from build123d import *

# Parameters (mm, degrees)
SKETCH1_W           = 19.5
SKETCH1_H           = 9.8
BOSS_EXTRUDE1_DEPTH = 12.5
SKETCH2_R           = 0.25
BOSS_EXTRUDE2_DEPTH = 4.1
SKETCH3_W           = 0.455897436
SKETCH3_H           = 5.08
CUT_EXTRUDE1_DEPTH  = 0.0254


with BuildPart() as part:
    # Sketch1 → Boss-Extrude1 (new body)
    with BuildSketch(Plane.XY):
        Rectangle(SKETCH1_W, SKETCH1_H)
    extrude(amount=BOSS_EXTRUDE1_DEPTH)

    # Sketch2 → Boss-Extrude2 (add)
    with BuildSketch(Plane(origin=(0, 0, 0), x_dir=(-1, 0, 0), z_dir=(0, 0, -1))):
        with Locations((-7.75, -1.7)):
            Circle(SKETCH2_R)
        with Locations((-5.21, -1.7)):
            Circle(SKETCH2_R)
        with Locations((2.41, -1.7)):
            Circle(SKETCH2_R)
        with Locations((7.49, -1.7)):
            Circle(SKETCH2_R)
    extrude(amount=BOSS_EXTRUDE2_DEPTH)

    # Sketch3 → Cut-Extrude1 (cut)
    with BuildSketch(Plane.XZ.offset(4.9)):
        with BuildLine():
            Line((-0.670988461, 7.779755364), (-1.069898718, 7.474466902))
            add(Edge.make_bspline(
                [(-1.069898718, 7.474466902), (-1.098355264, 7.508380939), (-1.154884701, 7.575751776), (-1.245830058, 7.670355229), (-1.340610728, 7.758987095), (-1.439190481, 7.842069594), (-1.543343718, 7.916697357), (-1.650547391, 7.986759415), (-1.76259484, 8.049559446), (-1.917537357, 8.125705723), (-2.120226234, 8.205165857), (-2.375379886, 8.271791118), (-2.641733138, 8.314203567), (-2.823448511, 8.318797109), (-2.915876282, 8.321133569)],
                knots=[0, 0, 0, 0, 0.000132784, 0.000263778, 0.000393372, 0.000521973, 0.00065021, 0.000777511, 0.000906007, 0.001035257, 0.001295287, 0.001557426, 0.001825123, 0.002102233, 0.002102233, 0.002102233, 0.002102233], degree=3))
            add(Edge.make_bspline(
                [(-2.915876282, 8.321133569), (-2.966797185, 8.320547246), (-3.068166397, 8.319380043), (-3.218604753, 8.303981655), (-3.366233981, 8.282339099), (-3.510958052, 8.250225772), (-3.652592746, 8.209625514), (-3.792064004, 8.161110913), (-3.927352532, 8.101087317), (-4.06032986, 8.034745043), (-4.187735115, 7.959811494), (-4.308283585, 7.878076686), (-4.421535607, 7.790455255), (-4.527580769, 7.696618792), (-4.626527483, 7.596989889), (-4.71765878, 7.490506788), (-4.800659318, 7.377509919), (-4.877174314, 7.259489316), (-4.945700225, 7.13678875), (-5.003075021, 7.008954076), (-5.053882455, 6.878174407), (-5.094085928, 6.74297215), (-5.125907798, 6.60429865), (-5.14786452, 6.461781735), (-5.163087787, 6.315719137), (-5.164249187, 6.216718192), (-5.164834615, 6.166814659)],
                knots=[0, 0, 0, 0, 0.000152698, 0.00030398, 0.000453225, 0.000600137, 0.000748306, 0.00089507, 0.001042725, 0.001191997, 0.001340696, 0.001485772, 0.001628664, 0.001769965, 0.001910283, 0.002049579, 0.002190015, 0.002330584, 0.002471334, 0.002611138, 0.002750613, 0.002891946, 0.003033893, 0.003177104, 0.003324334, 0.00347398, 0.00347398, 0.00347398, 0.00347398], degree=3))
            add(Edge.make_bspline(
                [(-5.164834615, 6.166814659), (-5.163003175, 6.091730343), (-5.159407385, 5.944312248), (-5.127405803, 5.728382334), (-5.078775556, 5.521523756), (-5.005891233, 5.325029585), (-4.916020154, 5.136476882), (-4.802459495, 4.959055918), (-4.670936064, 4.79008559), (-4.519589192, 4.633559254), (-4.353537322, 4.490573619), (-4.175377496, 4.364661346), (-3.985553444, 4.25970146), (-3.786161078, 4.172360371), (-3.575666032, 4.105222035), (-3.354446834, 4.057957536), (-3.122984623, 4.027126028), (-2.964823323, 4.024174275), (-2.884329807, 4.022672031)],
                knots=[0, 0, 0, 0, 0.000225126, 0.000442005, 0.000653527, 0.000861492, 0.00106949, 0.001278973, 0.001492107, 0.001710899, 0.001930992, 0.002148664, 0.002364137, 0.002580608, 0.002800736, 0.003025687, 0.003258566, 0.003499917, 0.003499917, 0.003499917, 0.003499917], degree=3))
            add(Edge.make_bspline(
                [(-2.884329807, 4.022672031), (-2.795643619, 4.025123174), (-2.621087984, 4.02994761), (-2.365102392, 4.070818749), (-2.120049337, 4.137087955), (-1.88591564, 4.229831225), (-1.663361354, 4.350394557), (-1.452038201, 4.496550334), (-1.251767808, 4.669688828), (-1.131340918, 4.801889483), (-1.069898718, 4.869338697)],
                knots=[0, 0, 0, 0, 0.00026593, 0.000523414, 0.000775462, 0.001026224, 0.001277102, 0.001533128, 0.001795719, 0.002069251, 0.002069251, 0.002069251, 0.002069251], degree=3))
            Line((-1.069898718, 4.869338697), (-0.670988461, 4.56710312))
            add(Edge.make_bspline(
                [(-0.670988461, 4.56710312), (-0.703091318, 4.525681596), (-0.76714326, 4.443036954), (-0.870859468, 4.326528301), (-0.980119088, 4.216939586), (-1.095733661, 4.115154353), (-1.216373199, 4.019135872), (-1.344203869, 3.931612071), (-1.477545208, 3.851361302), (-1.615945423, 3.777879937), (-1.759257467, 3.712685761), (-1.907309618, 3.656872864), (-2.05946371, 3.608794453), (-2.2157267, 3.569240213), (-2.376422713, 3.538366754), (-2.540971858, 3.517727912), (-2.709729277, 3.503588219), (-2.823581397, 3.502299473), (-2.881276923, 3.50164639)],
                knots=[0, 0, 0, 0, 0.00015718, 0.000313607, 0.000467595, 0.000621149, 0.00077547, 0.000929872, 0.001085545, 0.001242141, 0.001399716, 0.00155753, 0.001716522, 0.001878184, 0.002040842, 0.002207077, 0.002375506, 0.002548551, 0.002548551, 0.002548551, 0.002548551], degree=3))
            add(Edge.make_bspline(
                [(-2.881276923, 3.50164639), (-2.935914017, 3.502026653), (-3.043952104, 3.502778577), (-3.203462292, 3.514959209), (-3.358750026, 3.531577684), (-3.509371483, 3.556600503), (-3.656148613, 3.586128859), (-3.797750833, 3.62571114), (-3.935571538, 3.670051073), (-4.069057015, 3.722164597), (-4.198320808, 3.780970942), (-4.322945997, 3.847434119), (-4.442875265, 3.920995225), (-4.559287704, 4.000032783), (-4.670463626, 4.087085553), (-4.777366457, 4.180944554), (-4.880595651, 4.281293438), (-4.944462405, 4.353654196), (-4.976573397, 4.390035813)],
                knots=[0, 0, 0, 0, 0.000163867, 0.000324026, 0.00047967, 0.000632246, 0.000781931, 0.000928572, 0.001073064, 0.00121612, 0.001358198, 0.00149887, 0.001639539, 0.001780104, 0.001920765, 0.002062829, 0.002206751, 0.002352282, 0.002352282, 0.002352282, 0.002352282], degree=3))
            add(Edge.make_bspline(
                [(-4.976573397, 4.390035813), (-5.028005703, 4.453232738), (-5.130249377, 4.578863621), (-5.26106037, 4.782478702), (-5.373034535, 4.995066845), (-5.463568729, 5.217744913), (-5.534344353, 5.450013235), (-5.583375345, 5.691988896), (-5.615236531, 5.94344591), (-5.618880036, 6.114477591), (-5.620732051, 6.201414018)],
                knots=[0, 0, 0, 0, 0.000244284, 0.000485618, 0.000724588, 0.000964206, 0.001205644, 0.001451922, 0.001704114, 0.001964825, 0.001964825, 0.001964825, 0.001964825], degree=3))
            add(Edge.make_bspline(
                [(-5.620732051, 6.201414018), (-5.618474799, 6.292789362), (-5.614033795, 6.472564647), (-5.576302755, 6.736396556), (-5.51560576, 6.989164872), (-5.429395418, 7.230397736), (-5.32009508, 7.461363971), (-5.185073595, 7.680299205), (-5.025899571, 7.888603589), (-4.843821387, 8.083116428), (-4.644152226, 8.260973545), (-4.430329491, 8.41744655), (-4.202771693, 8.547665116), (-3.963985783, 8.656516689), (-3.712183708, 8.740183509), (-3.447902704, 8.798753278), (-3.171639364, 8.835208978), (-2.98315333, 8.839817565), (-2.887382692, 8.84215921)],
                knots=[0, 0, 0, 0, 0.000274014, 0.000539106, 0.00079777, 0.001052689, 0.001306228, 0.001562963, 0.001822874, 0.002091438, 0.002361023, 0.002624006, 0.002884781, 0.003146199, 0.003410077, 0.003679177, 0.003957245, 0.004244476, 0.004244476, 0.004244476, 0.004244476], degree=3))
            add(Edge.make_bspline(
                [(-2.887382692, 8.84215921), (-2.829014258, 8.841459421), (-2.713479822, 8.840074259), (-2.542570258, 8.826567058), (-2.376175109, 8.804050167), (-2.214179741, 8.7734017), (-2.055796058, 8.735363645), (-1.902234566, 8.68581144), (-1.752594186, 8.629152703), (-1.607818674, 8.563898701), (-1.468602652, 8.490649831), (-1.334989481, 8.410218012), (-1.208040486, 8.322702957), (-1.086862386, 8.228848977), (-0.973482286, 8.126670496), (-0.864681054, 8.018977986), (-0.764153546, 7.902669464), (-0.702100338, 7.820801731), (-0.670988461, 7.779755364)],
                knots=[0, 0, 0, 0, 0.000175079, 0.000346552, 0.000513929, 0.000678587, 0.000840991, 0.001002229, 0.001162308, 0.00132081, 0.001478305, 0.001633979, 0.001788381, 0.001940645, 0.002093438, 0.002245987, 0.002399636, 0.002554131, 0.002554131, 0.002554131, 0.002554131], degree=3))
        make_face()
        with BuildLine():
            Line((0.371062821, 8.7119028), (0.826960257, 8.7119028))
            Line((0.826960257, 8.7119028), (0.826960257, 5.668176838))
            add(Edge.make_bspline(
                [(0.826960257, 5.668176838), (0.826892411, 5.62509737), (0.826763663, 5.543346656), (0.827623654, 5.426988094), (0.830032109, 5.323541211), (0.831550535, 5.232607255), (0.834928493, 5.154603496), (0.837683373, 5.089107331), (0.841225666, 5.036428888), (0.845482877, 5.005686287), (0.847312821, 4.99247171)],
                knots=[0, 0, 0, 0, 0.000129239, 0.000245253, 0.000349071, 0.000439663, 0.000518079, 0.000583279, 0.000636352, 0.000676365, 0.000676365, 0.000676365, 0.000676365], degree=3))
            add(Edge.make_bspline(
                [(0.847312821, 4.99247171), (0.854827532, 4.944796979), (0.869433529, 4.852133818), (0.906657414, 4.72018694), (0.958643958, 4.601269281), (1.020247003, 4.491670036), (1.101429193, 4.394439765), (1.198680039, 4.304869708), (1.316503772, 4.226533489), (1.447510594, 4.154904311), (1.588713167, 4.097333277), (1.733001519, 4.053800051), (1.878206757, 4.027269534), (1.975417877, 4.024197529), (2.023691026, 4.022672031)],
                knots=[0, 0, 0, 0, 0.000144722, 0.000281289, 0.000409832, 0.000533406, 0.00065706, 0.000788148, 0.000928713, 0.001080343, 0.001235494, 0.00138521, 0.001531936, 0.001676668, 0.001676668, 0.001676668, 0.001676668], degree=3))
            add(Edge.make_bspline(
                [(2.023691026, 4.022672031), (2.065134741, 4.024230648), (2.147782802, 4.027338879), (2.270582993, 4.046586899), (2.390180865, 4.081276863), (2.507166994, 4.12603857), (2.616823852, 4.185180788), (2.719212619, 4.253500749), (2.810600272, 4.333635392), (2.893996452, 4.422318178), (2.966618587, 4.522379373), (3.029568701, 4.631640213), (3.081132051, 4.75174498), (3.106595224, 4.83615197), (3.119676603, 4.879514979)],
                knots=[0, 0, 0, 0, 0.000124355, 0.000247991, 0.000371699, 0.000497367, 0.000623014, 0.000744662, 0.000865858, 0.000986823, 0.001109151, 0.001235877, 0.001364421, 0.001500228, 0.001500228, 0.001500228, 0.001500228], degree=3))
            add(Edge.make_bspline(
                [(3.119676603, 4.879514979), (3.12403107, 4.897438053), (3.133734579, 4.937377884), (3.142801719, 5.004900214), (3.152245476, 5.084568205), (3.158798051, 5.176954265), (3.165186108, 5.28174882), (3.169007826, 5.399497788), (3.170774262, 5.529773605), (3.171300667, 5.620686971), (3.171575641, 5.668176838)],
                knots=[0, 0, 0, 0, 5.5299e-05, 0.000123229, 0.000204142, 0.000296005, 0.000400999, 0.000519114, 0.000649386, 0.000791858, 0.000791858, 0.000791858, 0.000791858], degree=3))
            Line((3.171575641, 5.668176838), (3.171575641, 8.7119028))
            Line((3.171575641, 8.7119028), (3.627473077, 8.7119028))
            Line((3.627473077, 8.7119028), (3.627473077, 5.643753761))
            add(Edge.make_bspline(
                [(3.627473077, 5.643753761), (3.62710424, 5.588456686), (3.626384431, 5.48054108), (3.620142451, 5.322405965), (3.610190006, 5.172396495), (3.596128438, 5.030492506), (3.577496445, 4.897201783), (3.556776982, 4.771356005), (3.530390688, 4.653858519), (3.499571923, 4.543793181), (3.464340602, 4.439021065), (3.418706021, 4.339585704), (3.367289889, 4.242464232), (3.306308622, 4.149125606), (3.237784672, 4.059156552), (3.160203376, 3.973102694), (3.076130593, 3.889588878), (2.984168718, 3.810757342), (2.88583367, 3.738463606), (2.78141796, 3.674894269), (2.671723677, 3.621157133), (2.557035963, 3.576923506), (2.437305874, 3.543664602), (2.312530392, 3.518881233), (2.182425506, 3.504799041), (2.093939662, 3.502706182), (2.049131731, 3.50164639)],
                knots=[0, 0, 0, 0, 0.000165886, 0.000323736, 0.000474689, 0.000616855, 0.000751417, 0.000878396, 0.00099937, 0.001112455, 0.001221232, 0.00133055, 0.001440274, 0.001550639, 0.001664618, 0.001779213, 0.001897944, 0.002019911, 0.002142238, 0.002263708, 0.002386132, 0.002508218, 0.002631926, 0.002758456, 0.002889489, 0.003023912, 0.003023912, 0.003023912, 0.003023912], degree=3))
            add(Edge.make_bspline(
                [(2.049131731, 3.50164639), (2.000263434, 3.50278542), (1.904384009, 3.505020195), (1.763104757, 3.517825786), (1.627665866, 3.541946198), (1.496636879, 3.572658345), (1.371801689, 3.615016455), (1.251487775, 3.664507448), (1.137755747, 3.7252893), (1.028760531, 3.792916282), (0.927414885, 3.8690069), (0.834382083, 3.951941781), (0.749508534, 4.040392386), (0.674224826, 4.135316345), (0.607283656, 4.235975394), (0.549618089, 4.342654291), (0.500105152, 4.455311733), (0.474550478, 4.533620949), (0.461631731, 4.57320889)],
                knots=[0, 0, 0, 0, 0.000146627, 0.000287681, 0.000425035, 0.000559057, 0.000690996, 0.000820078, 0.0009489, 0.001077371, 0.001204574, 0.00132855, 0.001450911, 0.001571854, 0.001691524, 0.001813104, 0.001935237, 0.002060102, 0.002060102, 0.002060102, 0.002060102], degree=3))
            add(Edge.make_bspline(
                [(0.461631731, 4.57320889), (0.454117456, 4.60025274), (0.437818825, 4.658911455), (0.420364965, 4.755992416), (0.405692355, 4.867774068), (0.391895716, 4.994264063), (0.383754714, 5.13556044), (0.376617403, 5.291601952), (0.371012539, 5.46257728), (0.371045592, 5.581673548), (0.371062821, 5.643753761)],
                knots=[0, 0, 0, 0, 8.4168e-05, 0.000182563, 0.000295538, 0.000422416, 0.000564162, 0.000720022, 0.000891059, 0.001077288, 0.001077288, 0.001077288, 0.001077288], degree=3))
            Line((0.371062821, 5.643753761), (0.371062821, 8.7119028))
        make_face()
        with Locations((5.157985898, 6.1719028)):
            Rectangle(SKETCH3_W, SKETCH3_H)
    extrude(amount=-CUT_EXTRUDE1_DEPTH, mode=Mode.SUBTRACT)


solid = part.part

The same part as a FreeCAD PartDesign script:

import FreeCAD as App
import Part
import Sketcher

V = App.Vector

doc = App.newDocument("Part")
body = doc.addObject("PartDesign::Body", "Body")

# Sketch on XY plane
sketch1 = body.newObject("Sketcher::SketchObject", "Sketch")
sketch1.AttachmentSupport = (doc.getObject("XY_Plane"), [""])
sketch1.MapMode = "FlatFace"
sketch1.addGeometry([
    Part.LineSegment(V(-10, 5, 0), V(-10, -5, 0)),
    Part.LineSegment(V(-10, -5, 0), V(10, -5, 0)),
    Part.LineSegment(V(10, -5, 0), V(10, 5, 0)),
    Part.LineSegment(V(10, 5, 0), V(-10, 5, 0)),
], False)
sketch1.addConstraint([
    Sketcher.Constraint("Coincident", 0, 2, 1, 1),
    Sketcher.Constraint("Coincident", 1, 2, 2, 1),
    Sketcher.Constraint("Coincident", 2, 2, 3, 1),
    Sketcher.Constraint("Coincident", 3, 2, 0, 1),
    Sketcher.Constraint("Vertical", 0),
    Sketcher.Constraint("Horizontal", 1),
    Sketcher.Constraint("Vertical", 2),
    Sketcher.Constraint("Horizontal", 3),
    Sketcher.Constraint("Symmetric", 0, 2, 2, 2, -1, 1),
    Sketcher.Constraint("DistanceX", 1, 1, 1, 2, 19.5),
    Sketcher.Constraint("DistanceY", 0, 2, 0, 1, 9.8),
])
pad1 = body.newObject("PartDesign::Pad", "Pad")
pad1.Profile = sketch1
pad1.Length = 12.5

# Sketch on XY plane
sketch2 = body.newObject("Sketcher::SketchObject", "Sketch001")
sketch2.AttachmentSupport = (doc.getObject("XY_Plane"), [""])
sketch2.MapMode = "FlatFace"
sketch2.addGeometry([
    Part.Circle(V(7.75, -1.7, 0), V(0, 0, 1), 0.25),
    Part.Circle(V(5.21, -1.7, 0), V(0, 0, 1), 0.25),
    Part.Circle(V(-2.41, -1.7, 0), V(0, 0, 1), 0.25),
    Part.Circle(V(-7.49, -1.7, 0), V(0, 0, 1), 0.25),
], False)
sketch2.addConstraint([
    Sketcher.Constraint("Equal", 0, 1),
    Sketcher.Constraint("Equal", 1, 2),
    Sketcher.Constraint("Equal", 2, 3),
    Sketcher.Constraint("Horizontal", 0, 3, 1, 3),
    Sketcher.Constraint("Horizontal", 1, 3, 2, 3),
    Sketcher.Constraint("Horizontal", 2, 3, 3, 3),
    Sketcher.Constraint("Diameter", 0, 0.5),
    Sketcher.Constraint("DistanceY", 0, 3, -1, 1, 1.7),
    Sketcher.Constraint("DistanceX", 3, 3, 1, 3, 12.7),
    Sketcher.Constraint("DistanceX", -1, 1, 0, 3, 7.75),
    Sketcher.Constraint("DistanceX", -1, 1, 1, 3, 5.21),
    Sketcher.Constraint("DistanceX", 2, 3, -1, 1, 2.41),
])
pad2 = body.newObject("PartDesign::Pad", "Pad001")
pad2.Profile = sketch2
pad2.Length = 4.1
pad2.Reversed = True

# Sketch on XZ plane
sketch3 = body.newObject("Sketcher::SketchObject", "Sketch002")
sketch3.AttachmentSupport = (doc.getObject("XZ_Plane"), [""])
sketch3.MapMode = "FlatFace"
sketch3.AttachmentOffset = App.Placement(V(0, 0, 4.9), App.Rotation())
sketch3.addGeometry([
    Part.LineSegment(V(-1.069899, 7.474467, 0), V(-0.670988, 7.779755, 0)),  # 0
    Part.BSplineCurve([V(-2.887383, 8.842159, 0), V(-2.829014, 8.841459, 0), V(-2.71348, 8.840074, 0), V(-2.54257, 8.826567, 0), V(-2.376175, 8.80405, 0), V(-2.21418, 8.773402, 0), V(-2.055796, 8.735364, 0), V(-1.902235, 8.685811, 0), V(-1.752594, 8.629153, 0), V(-1.607819, 8.563899, 0), V(-1.468603, 8.49065, 0), V(-1.334989, 8.410218, 0), V(-1.20804, 8.322703, 0), V(-1.086862, 8.228849, 0), V(-0.973482, 8.12667, 0), V(-0.864681, 8.018978, 0), V(-0.764154, 7.902669, 0), V(-0.7021, 7.820802, 0), V(-0.670988, 7.779755, 0)], [4, 1, 1, 1, 1, 1, 1, 1, 1, 1, 1, 1, 1, 1, 1, 1, 4], [0, 0.000175079, 0.000346552, 0.000513929, 0.000678587, 0.000840991, 0.001002229, 0.001162308, 0.00132081, 0.001478305, 0.001633979, 0.001788381, 0.001940645, 0.002093438, 0.002245987, 0.002399636, 0.002554131], False, 3, [1, 1, 1, 1, 1, 1, 1, 1, 1, 1, 1, 1, 1, 1, 1, 1, 1, 1, 1], False),  # 1
    Part.BSplineCurve([V(-5.620732, 6.201414, 0), V(-5.618475, 6.292789, 0), V(-5.614034, 6.472565, 0), V(-5.576303, 6.736397, 0), V(-5.515606, 6.989165, 0), V(-5.429395, 7.230398, 0), V(-5.320095, 7.461364, 0), V(-5.185074, 7.680299, 0), V(-5.0259, 7.888604, 0), V(-4.843821, 8.083116, 0), V(-4.644152, 8.260974, 0), V(-4.430329, 8.417447, 0), V(-4.202772, 8.547665, 0), V(-3.963986, 8.656517, 0), V(-3.712184, 8.740184, 0), V(-3.447903, 8.798753, 0), V(-3.171639, 8.835209, 0), V(-2.983153, 8.839818, 0), V(-2.887383, 8.842159, 0)], [4, 1, 1, 1, 1, 1, 1, 1, 1, 1, 1, 1, 1, 1, 1, 1, 4], [0, 0.000274014, 0.000539106, 0.00079777, 0.001052689, 0.001306228, 0.001562963, 0.001822874, 0.002091438, 0.002361023, 0.002624006, 0.002884781, 0.003146199, 0.003410077, 0.003679177, 0.003957245, 0.004244476], False, 3, [1, 1, 1, 1, 1, 1, 1, 1, 1, 1, 1, 1, 1, 1, 1, 1, 1, 1, 1], False),  # 2
    Part.BSplineCurve([V(-4.976573, 4.390036, 0), V(-5.028006, 4.453233, 0), V(-5.130249, 4.578864, 0), V(-5.26106, 4.782479, 0), V(-5.373035, 4.995067, 0), V(-5.463569, 5.217745, 0), V(-5.534344, 5.450013, 0), V(-5.583375, 5.691989, 0), V(-5.615237, 5.943446, 0), V(-5.61888, 6.114478, 0), V(-5.620732, 6.201414, 0)], [4, 1, 1, 1, 1, 1, 1, 1, 4], [0, 0.000244284, 0.000485618, 0.000724588, 0.000964206, 0.001205644, 0.001451922, 0.001704114, 0.001964825], False, 3, [1, 1, 1, 1, 1, 1, 1, 1, 1, 1, 1], False),  # 3
    Part.BSplineCurve([V(-2.881277, 3.501646, 0), V(-2.935914, 3.502027, 0), V(-3.043952, 3.502779, 0), V(-3.203462, 3.514959, 0), V(-3.35875, 3.531578, 0), V(-3.509371, 3.556601, 0), V(-3.656149, 3.586129, 0), V(-3.797751, 3.625711, 0), V(-3.935572, 3.670051, 0), V(-4.069057, 3.722165, 0), V(-4.198321, 3.780971, 0), V(-4.322946, 3.847434, 0), V(-4.442875, 3.920995, 0), V(-4.559288, 4.000033, 0), V(-4.670464, 4.087086, 0), V(-4.777366, 4.180945, 0), V(-4.880596, 4.281293, 0), V(-4.944462, 4.353654, 0), V(-4.976573, 4.390036, 0)], [4, 1, 1, 1, 1, 1, 1, 1, 1, 1, 1, 1, 1, 1, 1, 1, 4], [0, 0.000163867, 0.000324026, 0.00047967, 0.000632246, 0.000781931, 0.000928572, 0.001073064, 0.00121612, 0.001358198, 0.00149887, 0.001639539, 0.001780104, 0.001920765, 0.002062829, 0.002206751, 0.002352282], False, 3, [1, 1, 1, 1, 1, 1, 1, 1, 1, 1, 1, 1, 1, 1, 1, 1, 1, 1, 1], False),  # 4
    Part.BSplineCurve([V(-0.670988, 4.567103, 0), V(-0.703091, 4.525682, 0), V(-0.767143, 4.443037, 0), V(-0.870859, 4.326528, 0), V(-0.980119, 4.21694, 0), V(-1.095734, 4.115154, 0), V(-1.216373, 4.019136, 0), V(-1.344204, 3.931612, 0), V(-1.477545, 3.851361, 0), V(-1.615945, 3.77788, 0), V(-1.759257, 3.712686, 0), V(-1.90731, 3.656873, 0), V(-2.059464, 3.608794, 0), V(-2.215727, 3.56924, 0), V(-2.376423, 3.538367, 0), V(-2.540972, 3.517728, 0), V(-2.709729, 3.503588, 0), V(-2.823581, 3.502299, 0), V(-2.881277, 3.501646, 0)], [4, 1, 1, 1, 1, 1, 1, 1, 1, 1, 1, 1, 1, 1, 1, 1, 4], [0, 0.00015718, 0.000313607, 0.000467595, 0.000621149, 0.00077547, 0.000929872, 0.001085545, 0.001242141, 0.001399716, 0.00155753, 0.001716522, 0.001878184, 0.002040842, 0.002207077, 0.002375506, 0.002548551], False, 3, [1, 1, 1, 1, 1, 1, 1, 1, 1, 1, 1, 1, 1, 1, 1, 1, 1, 1, 1], False),  # 5
    Part.LineSegment(V(-0.670988, 4.567103, 0), V(-1.069899, 4.869339, 0)),  # 6
    Part.BSplineCurve([V(-2.88433, 4.022672, 0), V(-2.795644, 4.025123, 0), V(-2.621088, 4.029948, 0), V(-2.365102, 4.070819, 0), V(-2.120049, 4.137088, 0), V(-1.885916, 4.229831, 0), V(-1.663361, 4.350395, 0), V(-1.452038, 4.49655, 0), V(-1.251768, 4.669689, 0), V(-1.131341, 4.801889, 0), V(-1.069899, 4.869339, 0)], [4, 1, 1, 1, 1, 1, 1, 1, 4], [0, 0.00026593, 0.000523414, 0.000775462, 0.001026224, 0.001277102, 0.001533128, 0.001795719, 0.002069251], False, 3, [1, 1, 1, 1, 1, 1, 1, 1, 1, 1, 1], False),  # 7
    Part.BSplineCurve([V(-5.164835, 6.166815, 0), V(-5.163003, 6.09173, 0), V(-5.159407, 5.944312, 0), V(-5.127406, 5.728382, 0), V(-5.078776, 5.521524, 0), V(-5.005891, 5.32503, 0), V(-4.91602, 5.136477, 0), V(-4.802459, 4.959056, 0), V(-4.670936, 4.790086, 0), V(-4.519589, 4.633559, 0), V(-4.353537, 4.490574, 0), V(-4.175377, 4.364661, 0), V(-3.985553, 4.259701, 0), V(-3.786161, 4.17236, 0), V(-3.575666, 4.105222, 0), V(-3.354447, 4.057958, 0), V(-3.122985, 4.027126, 0), V(-2.964823, 4.024174, 0), V(-2.88433, 4.022672, 0)], [4, 1, 1, 1, 1, 1, 1, 1, 1, 1, 1, 1, 1, 1, 1, 1, 4], [0, 0.000225126, 0.000442005, 0.000653527, 0.000861492, 0.00106949, 0.001278973, 0.001492107, 0.001710899, 0.001930992, 0.002148664, 0.002364137, 0.002580608, 0.002800736, 0.003025687, 0.003258566, 0.003499917], False, 3, [1, 1, 1, 1, 1, 1, 1, 1, 1, 1, 1, 1, 1, 1, 1, 1, 1, 1, 1], False),  # 8
    Part.BSplineCurve([V(-2.915876, 8.321134, 0), V(-2.966797, 8.320547, 0), V(-3.068166, 8.31938, 0), V(-3.218605, 8.303982, 0), V(-3.366234, 8.282339, 0), V(-3.510958, 8.250226, 0), V(-3.652593, 8.209626, 0), V(-3.792064, 8.161111, 0), V(-3.927353, 8.101087, 0), V(-4.06033, 8.034745, 0), V(-4.187735, 7.959811, 0), V(-4.308284, 7.878077, 0), V(-4.421536, 7.790455, 0), V(-4.527581, 7.696619, 0), V(-4.626527, 7.59699, 0), V(-4.717659, 7.490507, 0), V(-4.800659, 7.37751, 0), V(-4.877174, 7.259489, 0), V(-4.9457, 7.136789, 0), V(-5.003075, 7.008954, 0), V(-5.053882, 6.878174, 0), V(-5.094086, 6.742972, 0), V(-5.125908, 6.604299, 0), V(-5.147865, 6.461782, 0), V(-5.163088, 6.315719, 0), V(-5.164249, 6.216718, 0), V(-5.164835, 6.166815, 0)], [4, 1, 1, 1, 1, 1, 1, 1, 1, 1, 1, 1, 1, 1, 1, 1, 1, 1, 1, 1, 1, 1, 1, 1, 4], [0, 0.000152698, 0.00030398, 0.000453225, 0.000600137, 0.000748306, 0.00089507, 0.001042725, 0.001191997, 0.001340696, 0.001485772, 0.001628664, 0.001769965, 0.001910283, 0.002049579, 0.002190015, 0.002330584, 0.002471334, 0.002611138, 0.002750613, 0.002891946, 0.003033893, 0.003177104, 0.003324334, 0.00347398], False, 3, [1, 1, 1, 1, 1, 1, 1, 1, 1, 1, 1, 1, 1, 1, 1, 1, 1, 1, 1, 1, 1, 1, 1, 1, 1, 1, 1], False),  # 9
    Part.BSplineCurve([V(-1.069899, 7.474467, 0), V(-1.098355, 7.508381, 0), V(-1.154885, 7.575752, 0), V(-1.24583, 7.670355, 0), V(-1.340611, 7.758987, 0), V(-1.43919, 7.84207, 0), V(-1.543344, 7.916697, 0), V(-1.650547, 7.986759, 0), V(-1.762595, 8.049559, 0), V(-1.917537, 8.125706, 0), V(-2.120226, 8.205166, 0), V(-2.37538, 8.271791, 0), V(-2.641733, 8.314204, 0), V(-2.823449, 8.318797, 0), V(-2.915876, 8.321134, 0)], [4, 1, 1, 1, 1, 1, 1, 1, 1, 1, 1, 1, 4], [0, 0.000132784, 0.000263778, 0.000393372, 0.000521973, 0.00065021, 0.000777511, 0.000906007, 0.001035257, 0.001295287, 0.001557426, 0.001825123, 0.002102233], False, 3, [1, 1, 1, 1, 1, 1, 1, 1, 1, 1, 1, 1, 1, 1, 1], False),  # 10
    Part.LineSegment(V(0.82696, 8.711903, 0), V(0.371063, 8.711903, 0)),  # 11
    Part.LineSegment(V(0.371063, 8.711903, 0), V(0.371063, 5.643754, 0)),  # 12
    Part.BSplineCurve([V(0.461632, 4.573209, 0), V(0.454117, 4.600253, 0), V(0.437819, 4.658911, 0), V(0.420365, 4.755992, 0), V(0.405692, 4.867774, 0), V(0.391896, 4.994264, 0), V(0.383755, 5.13556, 0), V(0.376617, 5.291602, 0), V(0.371013, 5.462577, 0), V(0.371046, 5.581674, 0), V(0.371063, 5.643754, 0)], [4, 1, 1, 1, 1, 1, 1, 1, 4], [0, 0.000084168, 0.000182563, 0.000295538, 0.000422416, 0.000564162, 0.000720022, 0.000891059, 0.001077288], False, 3, [1, 1, 1, 1, 1, 1, 1, 1, 1, 1, 1], False),  # 13
    Part.BSplineCurve([V(2.049132, 3.501646, 0), V(2.000263, 3.502785, 0), V(1.904384, 3.50502, 0), V(1.763105, 3.517826, 0), V(1.627666, 3.541946, 0), V(1.496637, 3.572658, 0), V(1.371802, 3.615016, 0), V(1.251488, 3.664507, 0), V(1.137756, 3.725289, 0), V(1.028761, 3.792916, 0), V(0.927415, 3.869007, 0), V(0.834382, 3.951942, 0), V(0.749509, 4.040392, 0), V(0.674225, 4.135316, 0), V(0.607284, 4.235975, 0), V(0.549618, 4.342654, 0), V(0.500105, 4.455312, 0), V(0.47455, 4.533621, 0), V(0.461632, 4.573209, 0)], [4, 1, 1, 1, 1, 1, 1, 1, 1, 1, 1, 1, 1, 1, 1, 1, 4], [0, 0.000146627, 0.000287681, 0.000425035, 0.000559057, 0.000690996, 0.000820078, 0.0009489, 0.001077371, 0.001204574, 0.00132855, 0.001450911, 0.001571854, 0.001691524, 0.001813104, 0.001935237, 0.002060102], False, 3, [1, 1, 1, 1, 1, 1, 1, 1, 1, 1, 1, 1, 1, 1, 1, 1, 1, 1, 1], False),  # 14
    Part.BSplineCurve([V(3.627473, 5.643754, 0), V(3.627104, 5.588457, 0), V(3.626384, 5.480541, 0), V(3.620142, 5.322406, 0), V(3.61019, 5.172396, 0), V(3.596128, 5.030493, 0), V(3.577496, 4.897202, 0), V(3.556777, 4.771356, 0), V(3.530391, 4.653859, 0), V(3.499572, 4.543793, 0), V(3.464341, 4.439021, 0), V(3.418706, 4.339586, 0), V(3.36729, 4.242464, 0), V(3.306309, 4.149126, 0), V(3.237785, 4.059157, 0), V(3.160203, 3.973103, 0), V(3.076131, 3.889589, 0), V(2.984169, 3.810757, 0), V(2.885834, 3.738464, 0), V(2.781418, 3.674894, 0), V(2.671724, 3.621157, 0), V(2.557036, 3.576924, 0), V(2.437306, 3.543665, 0), V(2.31253, 3.518881, 0), V(2.182426, 3.504799, 0), V(2.09394, 3.502706, 0), V(2.049132, 3.501646, 0)], [4, 1, 1, 1, 1, 1, 1, 1, 1, 1, 1, 1, 1, 1, 1, 1, 1, 1, 1, 1, 1, 1, 1, 1, 4], [0, 0.000165886, 0.000323736, 0.000474689, 0.000616855, 0.000751417, 0.000878396, 0.00099937, 0.001112455, 0.001221232, 0.00133055, 0.001440274, 0.001550639, 0.001664618, 0.001779213, 0.001897944, 0.002019911, 0.002142238, 0.002263708, 0.002386132, 0.002508218, 0.002631926, 0.002758456, 0.002889489, 0.003023912], False, 3, [1, 1, 1, 1, 1, 1, 1, 1, 1, 1, 1, 1, 1, 1, 1, 1, 1, 1, 1, 1, 1, 1, 1, 1, 1, 1, 1], False),  # 15
    Part.LineSegment(V(3.627473, 5.643754, 0), V(3.627473, 8.711903, 0)),  # 16
    Part.LineSegment(V(3.627473, 8.711903, 0), V(3.171576, 8.711903, 0)),  # 17
    Part.LineSegment(V(3.171576, 8.711903, 0), V(3.171576, 5.668177, 0)),  # 18
    Part.BSplineCurve([V(3.119677, 4.879515, 0), V(3.124031, 4.897438, 0), V(3.133735, 4.937378, 0), V(3.142802, 5.0049, 0), V(3.152245, 5.084568, 0), V(3.158798, 5.176954, 0), V(3.165186, 5.281749, 0), V(3.169008, 5.399498, 0), V(3.170774, 5.529774, 0), V(3.171301, 5.620687, 0), V(3.171576, 5.668177, 0)], [4, 1, 1, 1, 1, 1, 1, 1, 4], [0, 0.000055299, 0.000123229, 0.000204142, 0.000296005, 0.000400999, 0.000519114, 0.000649386, 0.000791858], False, 3, [1, 1, 1, 1, 1, 1, 1, 1, 1, 1, 1], False),  # 19
    Part.BSplineCurve([V(2.023691, 4.022672, 0), V(2.065135, 4.024231, 0), V(2.147783, 4.027339, 0), V(2.270583, 4.046587, 0), V(2.390181, 4.081277, 0), V(2.507167, 4.126039, 0), V(2.616824, 4.185181, 0), V(2.719213, 4.253501, 0), V(2.8106, 4.333635, 0), V(2.893996, 4.422318, 0), V(2.966619, 4.522379, 0), V(3.029569, 4.63164, 0), V(3.081132, 4.751745, 0), V(3.106595, 4.836152, 0), V(3.119677, 4.879515, 0)], [4, 1, 1, 1, 1, 1, 1, 1, 1, 1, 1, 1, 4], [0, 0.000124355, 0.000247991, 0.000371699, 0.000497367, 0.000623014, 0.000744662, 0.000865858, 0.000986823, 0.001109151, 0.001235877, 0.001364421, 0.001500228], False, 3, [1, 1, 1, 1, 1, 1, 1, 1, 1, 1, 1, 1, 1, 1, 1], False),  # 20
    Part.BSplineCurve([V(0.847313, 4.992472, 0), V(0.854828, 4.944797, 0), V(0.869434, 4.852134, 0), V(0.906657, 4.720187, 0), V(0.958644, 4.601269, 0), V(1.020247, 4.49167, 0), V(1.101429, 4.39444, 0), V(1.19868, 4.30487, 0), V(1.316504, 4.226533, 0), V(1.447511, 4.154904, 0), V(1.588713, 4.097333, 0), V(1.733002, 4.0538, 0), V(1.878207, 4.02727, 0), V(1.975418, 4.024198, 0), V(2.023691, 4.022672, 0)], [4, 1, 1, 1, 1, 1, 1, 1, 1, 1, 1, 1, 4], [0, 0.000144722, 0.000281289, 0.000409832, 0.000533406, 0.00065706, 0.000788148, 0.000928713, 0.001080343, 0.001235494, 0.00138521, 0.001531936, 0.001676668], False, 3, [1, 1, 1, 1, 1, 1, 1, 1, 1, 1, 1, 1, 1, 1, 1], False),  # 21
    Part.BSplineCurve([V(0.82696, 5.668177, 0), V(0.826892, 5.625097, 0), V(0.826764, 5.543347, 0), V(0.827624, 5.426988, 0), V(0.830032, 5.323541, 0), V(0.831551, 5.232607, 0), V(0.834928, 5.154603, 0), V(0.837683, 5.089107, 0), V(0.841226, 5.036429, 0), V(0.845483, 5.005686, 0), V(0.847313, 4.992472, 0)], [4, 1, 1, 1, 1, 1, 1, 1, 4], [0, 0.000129239, 0.000245253, 0.000349071, 0.000439663, 0.000518079, 0.000583279, 0.000636352, 0.000676365], False, 3, [1, 1, 1, 1, 1, 1, 1, 1, 1, 1, 1], False),  # 22
    Part.LineSegment(V(0.82696, 5.668177, 0), V(0.82696, 8.711903, 0)),  # 23
    Part.LineSegment(V(4.930037, 8.711903, 0), V(4.930037, 3.631903, 0)),  # 24
    Part.LineSegment(V(4.930037, 3.631903, 0), V(5.385935, 3.631903, 0)),  # 25
    Part.LineSegment(V(5.385935, 3.631903, 0), V(5.385935, 8.711903, 0)),  # 26
    Part.LineSegment(V(5.385935, 8.711903, 0), V(4.930037, 8.711903, 0)),  # 27
], False)
sketch3.addConstraint([
    Sketcher.Constraint("Block", 1),
    Sketcher.Constraint("Block", 2),
    Sketcher.Constraint("Block", 3),
    Sketcher.Constraint("Block", 4),
    Sketcher.Constraint("Block", 5),
    Sketcher.Constraint("Block", 7),
    Sketcher.Constraint("Block", 8),
    Sketcher.Constraint("Block", 9),
    Sketcher.Constraint("Block", 10),
    Sketcher.Constraint("Block", 13),
    Sketcher.Constraint("Block", 14),
    Sketcher.Constraint("Block", 15),
    Sketcher.Constraint("Block", 19),
    Sketcher.Constraint("Block", 20),
    Sketcher.Constraint("Block", 21),
    Sketcher.Constraint("Block", 22),
    Sketcher.Constraint("Coincident", 0, 2, 1, 2),
    Sketcher.Constraint("Coincident", 5, 1, 6, 1),
    Sketcher.Constraint("Coincident", 6, 2, 7, 2),
    Sketcher.Constraint("Coincident", 10, 1, 0, 1),
    Sketcher.Constraint("Coincident", 11, 2, 12, 1),
    Sketcher.Constraint("Coincident", 12, 2, 13, 2),
    Sketcher.Constraint("Coincident", 15, 1, 16, 1),
    Sketcher.Constraint("Coincident", 16, 2, 17, 1),
    Sketcher.Constraint("Coincident", 17, 2, 18, 1),
    Sketcher.Constraint("Coincident", 18, 2, 19, 2),
    Sketcher.Constraint("Coincident", 22, 1, 23, 1),
    Sketcher.Constraint("Coincident", 23, 2, 11, 1),
    Sketcher.Constraint("Coincident", 24, 2, 25, 1),
    Sketcher.Constraint("Coincident", 25, 2, 26, 1),
    Sketcher.Constraint("Coincident", 26, 2, 27, 1),
    Sketcher.Constraint("Coincident", 27, 2, 24, 1),
    Sketcher.Constraint("Horizontal", 11),
    Sketcher.Constraint("Vertical", 12),
    Sketcher.Constraint("Vertical", 16),
    Sketcher.Constraint("Horizontal", 17),
    Sketcher.Constraint("Vertical", 18),
    Sketcher.Constraint("Vertical", 23),
    Sketcher.Constraint("Vertical", 24),
    Sketcher.Constraint("Horizontal", 25),
    Sketcher.Constraint("Vertical", 26),
    Sketcher.Constraint("Horizontal", 27),
    Sketcher.Constraint("Horizontal", 11, 2, 16, 2),
    Sketcher.Constraint("Horizontal", 23, 2, 26, 2),
    Sketcher.Constraint("Equal", 17, 25),
    Sketcher.Constraint("DistanceY", 24, 2, 24, 1, 5.08),
    Sketcher.Constraint("DistanceY", 12, 2, 12, 1, 3.068149),
    Sketcher.Constraint("DistanceX", 18, 2, 24, 2, 1.758462),
])
pocket1 = body.newObject("PartDesign::Pocket", "Pocket")
pocket1.Profile = sketch3
pocket1.Length = 0.0254

doc.recompute()
